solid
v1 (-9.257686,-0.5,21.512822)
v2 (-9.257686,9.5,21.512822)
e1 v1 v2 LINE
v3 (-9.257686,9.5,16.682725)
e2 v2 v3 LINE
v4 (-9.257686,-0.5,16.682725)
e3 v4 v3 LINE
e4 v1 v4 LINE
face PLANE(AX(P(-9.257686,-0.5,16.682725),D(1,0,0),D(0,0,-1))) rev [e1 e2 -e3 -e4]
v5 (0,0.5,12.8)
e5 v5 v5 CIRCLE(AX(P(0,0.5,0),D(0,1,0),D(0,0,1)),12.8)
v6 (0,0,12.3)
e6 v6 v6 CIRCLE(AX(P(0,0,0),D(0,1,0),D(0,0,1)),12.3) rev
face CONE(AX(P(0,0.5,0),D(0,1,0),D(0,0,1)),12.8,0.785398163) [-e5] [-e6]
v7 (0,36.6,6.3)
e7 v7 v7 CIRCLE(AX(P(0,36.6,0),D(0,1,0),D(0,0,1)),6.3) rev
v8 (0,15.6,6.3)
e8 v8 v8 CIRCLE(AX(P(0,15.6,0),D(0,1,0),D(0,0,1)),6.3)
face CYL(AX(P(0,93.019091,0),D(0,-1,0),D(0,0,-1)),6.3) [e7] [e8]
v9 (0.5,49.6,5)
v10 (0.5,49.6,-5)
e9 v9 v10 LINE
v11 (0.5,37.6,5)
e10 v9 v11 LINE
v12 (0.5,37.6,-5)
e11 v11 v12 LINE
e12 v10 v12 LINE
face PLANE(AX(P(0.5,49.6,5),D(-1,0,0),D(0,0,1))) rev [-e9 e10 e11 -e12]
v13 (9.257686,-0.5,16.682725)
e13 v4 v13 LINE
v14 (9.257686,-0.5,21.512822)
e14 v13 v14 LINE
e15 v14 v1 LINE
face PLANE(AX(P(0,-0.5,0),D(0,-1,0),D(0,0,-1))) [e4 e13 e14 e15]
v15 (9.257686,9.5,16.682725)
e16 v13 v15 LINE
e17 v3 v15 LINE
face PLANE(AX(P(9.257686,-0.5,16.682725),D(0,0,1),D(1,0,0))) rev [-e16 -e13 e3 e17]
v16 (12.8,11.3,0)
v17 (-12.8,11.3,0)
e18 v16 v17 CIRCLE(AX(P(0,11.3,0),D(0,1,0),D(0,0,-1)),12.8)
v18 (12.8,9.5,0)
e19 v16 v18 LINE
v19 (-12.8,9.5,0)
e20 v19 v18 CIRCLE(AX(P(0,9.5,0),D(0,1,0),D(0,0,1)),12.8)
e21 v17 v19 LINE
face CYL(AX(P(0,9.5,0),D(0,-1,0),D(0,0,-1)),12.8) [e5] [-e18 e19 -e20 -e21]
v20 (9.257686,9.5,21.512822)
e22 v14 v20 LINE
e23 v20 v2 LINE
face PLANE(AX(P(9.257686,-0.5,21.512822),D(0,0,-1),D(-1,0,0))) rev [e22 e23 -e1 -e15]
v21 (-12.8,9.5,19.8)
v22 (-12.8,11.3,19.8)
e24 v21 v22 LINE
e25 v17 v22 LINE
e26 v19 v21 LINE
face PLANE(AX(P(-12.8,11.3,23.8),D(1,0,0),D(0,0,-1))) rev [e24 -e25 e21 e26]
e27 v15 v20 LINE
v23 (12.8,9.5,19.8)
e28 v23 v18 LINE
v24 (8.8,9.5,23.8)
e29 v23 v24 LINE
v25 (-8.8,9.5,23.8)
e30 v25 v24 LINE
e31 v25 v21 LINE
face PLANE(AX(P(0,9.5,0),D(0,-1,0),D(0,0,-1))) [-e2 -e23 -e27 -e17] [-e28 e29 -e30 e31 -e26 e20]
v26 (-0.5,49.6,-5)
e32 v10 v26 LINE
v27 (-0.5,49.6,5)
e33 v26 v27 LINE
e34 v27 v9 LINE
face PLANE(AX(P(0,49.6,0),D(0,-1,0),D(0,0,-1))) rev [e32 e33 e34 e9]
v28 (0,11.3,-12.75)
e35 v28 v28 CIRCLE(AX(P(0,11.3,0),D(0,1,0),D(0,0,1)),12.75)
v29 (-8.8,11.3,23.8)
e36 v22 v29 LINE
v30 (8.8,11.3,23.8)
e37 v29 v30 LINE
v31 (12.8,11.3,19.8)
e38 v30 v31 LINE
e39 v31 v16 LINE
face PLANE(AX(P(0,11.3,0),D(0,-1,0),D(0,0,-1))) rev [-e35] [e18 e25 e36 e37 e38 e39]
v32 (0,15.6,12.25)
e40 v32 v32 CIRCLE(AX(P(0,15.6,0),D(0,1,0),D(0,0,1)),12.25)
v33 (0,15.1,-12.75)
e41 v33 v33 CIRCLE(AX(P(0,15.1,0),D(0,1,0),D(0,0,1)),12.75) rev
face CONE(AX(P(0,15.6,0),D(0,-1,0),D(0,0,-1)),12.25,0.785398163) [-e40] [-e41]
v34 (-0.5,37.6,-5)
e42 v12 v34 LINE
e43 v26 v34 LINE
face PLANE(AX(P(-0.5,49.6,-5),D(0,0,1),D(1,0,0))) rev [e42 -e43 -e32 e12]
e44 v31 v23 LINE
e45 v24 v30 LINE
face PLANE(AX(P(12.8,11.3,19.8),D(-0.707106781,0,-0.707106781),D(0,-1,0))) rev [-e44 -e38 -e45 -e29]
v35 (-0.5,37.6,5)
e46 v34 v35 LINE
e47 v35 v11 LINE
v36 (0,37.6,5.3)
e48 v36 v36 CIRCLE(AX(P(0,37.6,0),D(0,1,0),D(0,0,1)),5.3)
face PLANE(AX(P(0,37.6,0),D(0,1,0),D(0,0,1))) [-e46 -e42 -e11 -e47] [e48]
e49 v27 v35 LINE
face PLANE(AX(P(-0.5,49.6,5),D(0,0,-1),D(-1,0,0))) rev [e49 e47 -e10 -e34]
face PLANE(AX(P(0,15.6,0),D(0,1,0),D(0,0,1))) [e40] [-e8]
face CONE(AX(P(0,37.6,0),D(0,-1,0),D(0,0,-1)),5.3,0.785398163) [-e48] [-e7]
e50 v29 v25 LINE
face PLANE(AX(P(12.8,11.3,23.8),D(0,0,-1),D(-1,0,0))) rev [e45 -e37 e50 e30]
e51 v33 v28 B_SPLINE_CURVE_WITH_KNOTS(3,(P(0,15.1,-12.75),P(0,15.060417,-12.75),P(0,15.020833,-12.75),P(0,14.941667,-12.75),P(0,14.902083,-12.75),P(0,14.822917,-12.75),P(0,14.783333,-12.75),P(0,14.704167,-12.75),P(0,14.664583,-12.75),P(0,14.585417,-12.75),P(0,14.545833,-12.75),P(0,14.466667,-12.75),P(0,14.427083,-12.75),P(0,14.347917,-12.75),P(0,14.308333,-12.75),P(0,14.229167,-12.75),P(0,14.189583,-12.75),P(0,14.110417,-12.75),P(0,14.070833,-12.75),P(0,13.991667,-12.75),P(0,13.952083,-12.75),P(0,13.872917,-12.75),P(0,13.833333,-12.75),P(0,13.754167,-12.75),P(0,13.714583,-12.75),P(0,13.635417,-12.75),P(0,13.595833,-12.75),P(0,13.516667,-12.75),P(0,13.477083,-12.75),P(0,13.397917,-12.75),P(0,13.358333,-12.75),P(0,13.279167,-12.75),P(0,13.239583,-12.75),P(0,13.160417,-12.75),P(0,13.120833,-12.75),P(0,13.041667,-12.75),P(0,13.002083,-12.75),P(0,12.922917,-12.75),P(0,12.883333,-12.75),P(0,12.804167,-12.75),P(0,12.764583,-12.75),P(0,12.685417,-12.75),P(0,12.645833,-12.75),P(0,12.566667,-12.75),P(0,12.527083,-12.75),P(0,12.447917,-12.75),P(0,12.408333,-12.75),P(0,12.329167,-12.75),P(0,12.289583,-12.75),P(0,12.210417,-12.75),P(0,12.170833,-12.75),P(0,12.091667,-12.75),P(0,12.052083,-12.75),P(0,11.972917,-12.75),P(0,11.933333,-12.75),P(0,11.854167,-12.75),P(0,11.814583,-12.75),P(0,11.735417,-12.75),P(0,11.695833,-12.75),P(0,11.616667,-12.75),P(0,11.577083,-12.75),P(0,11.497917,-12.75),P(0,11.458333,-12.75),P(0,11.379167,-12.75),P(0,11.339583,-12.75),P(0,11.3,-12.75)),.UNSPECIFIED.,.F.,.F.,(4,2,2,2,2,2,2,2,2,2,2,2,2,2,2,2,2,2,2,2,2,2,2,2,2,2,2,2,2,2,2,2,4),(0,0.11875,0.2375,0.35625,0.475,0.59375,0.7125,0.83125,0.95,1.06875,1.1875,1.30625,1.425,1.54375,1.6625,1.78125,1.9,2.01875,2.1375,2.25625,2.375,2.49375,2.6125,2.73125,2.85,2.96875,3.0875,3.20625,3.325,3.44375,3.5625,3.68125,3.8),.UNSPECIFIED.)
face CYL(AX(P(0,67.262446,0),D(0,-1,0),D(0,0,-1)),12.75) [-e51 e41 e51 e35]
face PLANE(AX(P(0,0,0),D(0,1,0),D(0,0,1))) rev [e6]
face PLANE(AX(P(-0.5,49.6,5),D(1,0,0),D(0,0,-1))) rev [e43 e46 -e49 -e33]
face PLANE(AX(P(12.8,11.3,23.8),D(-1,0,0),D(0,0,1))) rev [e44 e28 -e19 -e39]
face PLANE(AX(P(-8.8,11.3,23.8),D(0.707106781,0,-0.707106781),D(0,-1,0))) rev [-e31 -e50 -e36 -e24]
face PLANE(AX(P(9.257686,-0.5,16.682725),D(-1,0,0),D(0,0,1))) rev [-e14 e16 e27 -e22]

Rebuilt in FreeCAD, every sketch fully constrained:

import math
import FreeCAD as App
import Part
import Sketcher
from FreeCAD import Vector


def edges_at(feature, points):
    """Names of the edges that pass closest to the given points."""
    edges = feature.Shape.Edges
    near = lambda p: min(range(len(edges)), key=lambda i: edges[i].distToShape(Part.Vertex(*p))[0])
    return sorted({f"Edge{near(p) + 1}" for p in points})

doc = App.newDocument("Part")
params = doc.addObject("Spreadsheet::Sheet", "Params")
for row, (alias, value) in enumerate([
    ("sketch1_diameter", "25.6 mm"),
    ("pad1_length", "9.5 mm"),
    ("sketch2_radius", "12.8 mm"),
    ("sketch2_height", "23.8 mm"),
    ("pad2_length", "1.8 mm"),
    ("sketch3_diameter", "25.5 mm"),
    ("pad3_length", "4.3 mm"),
    ("sketch4_diameter", "12.6 mm"),
    ("pad4_length", "22 mm"),
    ("chamfer_size", "1 mm"),
    ("chamfer2_size", "0.5 mm"),
    ("pad5_length", "10 mm"),
    ("sketch6_width", "1 mm"),
    ("sketch6_height", "10 mm"),
    ("pad6_length", "12 mm"),
    ("chamfer3_size", "4 mm"),
], start=1):
    params.set(f"A{row}", alias)
    params.set(f"B{row}", "=" + value)
    params.setAlias(f"B{row}", alias)

body = doc.addObject("PartDesign::Body", "Body")

# Sketch on XZ plane
sketch1 = doc.addObject("Sketcher::SketchObject", "Sketch")
body.addObject(sketch1)
sketch1.AttachmentSupport = (doc.XZ_Plane, [""])
sketch1.MapMode = "FlatFace"
sketch1.addGeometry(Part.Circle(Vector(0, 0, 0), Vector(0, 0, 1), 13), False)
sketch1.addConstraint([
    Sketcher.Constraint("Coincident", 0, 3, -1, 1),
    Sketcher.Constraint("Diameter", 0, 25.6),
])
sketch1.setExpression("Constraints[1]", "Params.sketch1_diameter")
pad1 = doc.addObject("PartDesign::Pad", "Pad")
body.addObject(pad1)
pad1.Profile = sketch1
pad1.setExpression("Length", "Params.pad1_length")
pad1.Reversed = True

# Sketch on XZ plane
sketch2 = doc.addObject("Sketcher::SketchObject", "Sketch001")
body.addObject(sketch2)
sketch2.AttachmentSupport = (doc.XZ_Plane, [""])
sketch2.MapMode = "FlatFace"
sketch2.AttachmentOffset = App.Placement(Vector(0, 0, -9.5), App.Rotation())
sketch2.addGeometry([
    Part.LineSegment(Vector(-13, 24, 0), Vector(13, 24, 0)),
    Part.LineSegment(Vector(13, 24, 0), Vector(13, 0, 0)),
    Part.ArcOfCircle(Part.Circle(Vector(0, 0, 0), Vector(0, 0, 1), 13), math.radians(180), math.radians(360)),
    Part.LineSegment(Vector(-13, 0, 0), Vector(-13, 24, 0)),
], False)
sketch2.addConstraint([
    Sketcher.Constraint("Coincident", 0, 2, 1, 1),
    Sketcher.Constraint("Tangent", 1, 2, 2, 2),
    Sketcher.Constraint("Tangent", 2, 1, 3, 1),
    Sketcher.Constraint("Coincident", 3, 2, 0, 1),
    Sketcher.Constraint("Horizontal", 0),
    Sketcher.Constraint("Vertical", 1),
    Sketcher.Constraint("Vertical", 3),
    Sketcher.Constraint("Coincident", 2, 3, -1, 1),
    Sketcher.Constraint("Radius", 2, 12.8),
    Sketcher.Constraint("DistanceY", 1, 2, 1, 1, 23.8),
])
sketch2.setExpression("Constraints[8]", "Params.sketch2_radius")
sketch2.setExpression("Constraints[9]", "Params.sketch2_height")
pad2 = doc.addObject("PartDesign::Pad", "Pad001")
body.addObject(pad2)
pad2.Profile = sketch2
pad2.setExpression("Length", "Params.pad2_length")
pad2.Reversed = True

# Sketch on XZ plane
sketch3 = doc.addObject("Sketcher::SketchObject", "Sketch002")
body.addObject(sketch3)
sketch3.AttachmentSupport = (doc.XZ_Plane, [""])
sketch3.MapMode = "FlatFace"
sketch3.AttachmentOffset = App.Placement(Vector(0, 0, -11.3), App.Rotation())
sketch3.addGeometry(Part.Circle(Vector(0, 0, 0), Vector(0, 0, 1), 13), False)
sketch3.addConstraint([
    Sketcher.Constraint("Coincident", 0, 3, -1, 1),
    Sketcher.Constraint("Diameter", 0, 25.5),
])
sketch3.setExpression("Constraints[1]", "Params.sketch3_diameter")
pad3 = doc.addObject("PartDesign::Pad", "Pad002")
body.addObject(pad3)
pad3.Profile = sketch3
pad3.setExpression("Length", "Params.pad3_length")
pad3.Reversed = True

# Sketch on XZ plane
sketch4 = doc.addObject("Sketcher::SketchObject", "Sketch003")
body.addObject(sketch4)
sketch4.AttachmentSupport = (doc.XZ_Plane, [""])
sketch4.MapMode = "FlatFace"
sketch4.AttachmentOffset = App.Placement(Vector(0, 0, -15.6), App.Rotation())
sketch4.addGeometry(Part.Circle(Vector(0, 0, 0), Vector(0, 0, 1), 6), False)
sketch4.addConstraint([
    Sketcher.Constraint("Coincident", 0, 3, -1, 1),
    Sketcher.Constraint("Diameter", 0, 12.6),
])
sketch4.setExpression("Constraints[1]", "Params.sketch4_diameter")
pad4 = doc.addObject("PartDesign::Pad", "Pad003")
body.addObject(pad4)
pad4.Profile = sketch4
pad4.setExpression("Length", "Params.pad4_length")
pad4.Reversed = True
doc.recompute()

chamfer = doc.addObject("PartDesign::Chamfer", "Chamfer")
body.addObject(chamfer)
chamfer.Base = (pad4, edges_at(pad4, [(0, 37.6, -6.3)]))
chamfer.setExpression("Size", "Params.chamfer_size")
doc.recompute()

chamfer2 = doc.addObject("PartDesign::Chamfer", "Chamfer001")
body.addObject(chamfer2)
chamfer2.Base = (chamfer, edges_at(chamfer, [(0, 0, -12.8), (0, 15.6, 12.75)]))
chamfer2.setExpression("Size", "Params.chamfer2_size")

# Sketch on XZ plane
sketch5 = doc.addObject("Sketcher::SketchObject", "Sketch004")
body.addObject(sketch5)
sketch5.AttachmentSupport = (doc.XZ_Plane, [""])
sketch5.MapMode = "FlatFace"
sketch5.AttachmentOffset = App.Placement(Vector(0, 0, -9.5), App.Rotation())
sketch5.addGeometry([
    Part.LineSegment(Vector(-9.3, 21.5, 0), Vector(-9.3, 16.7, 0)),
    Part.LineSegment(Vector(-9.3, 16.7, 0), Vector(9.3, 16.7, 0)),
    Part.LineSegment(Vector(9.3, 16.7, 0), Vector(9.3, 21.5, 0)),
    Part.LineSegment(Vector(9.3, 21.5, 0), Vector(-9.3, 21.5, 0)),
], False)
sketch5.addConstraint([
    Sketcher.Constraint("Coincident", 0, 2, 1, 1),
    Sketcher.Constraint("Coincident", 1, 2, 2, 1),
    Sketcher.Constraint("Coincident", 2, 2, 3, 1),
    Sketcher.Constraint("Coincident", 3, 2, 0, 1),
    Sketcher.Constraint("Vertical", 0),
    Sketcher.Constraint("Horizontal", 1),
    Sketcher.Constraint("Vertical", 2),
    Sketcher.Constraint("Horizontal", 3),
    Sketcher.Constraint("DistanceX", 1, 1, 1, 2, 18.515373),
    Sketcher.Constraint("DistanceY", 0, 2, 0, 1, 4.830097),
    Sketcher.Constraint("DistanceX", 0, 2, -1, 1, 9.257686),
    Sketcher.Constraint("DistanceY", -1, 1, 0, 2, 16.682725),
])
pad5 = doc.addObject("PartDesign::Pad", "Pad004")
body.addObject(pad5)
pad5.Profile = sketch5
pad5.setExpression("Length", "Params.pad5_length")

# Sketch on XZ plane
sketch6 = doc.addObject("Sketcher::SketchObject", "Sketch005")
body.addObject(sketch6)
sketch6.AttachmentSupport = (doc.XZ_Plane, [""])
sketch6.MapMode = "FlatFace"
sketch6.AttachmentOffset = App.Placement(Vector(0, 0, -37.6), App.Rotation())
sketch6.addGeometry([
    Part.LineSegment(Vector(-0.5, -5, 0), Vector(-0.5, 5, 0)),
    Part.LineSegment(Vector(-0.5, 5, 0), Vector(0.5, 5, 0)),
    Part.LineSegment(Vector(0.5, 5, 0), Vector(0.5, -5, 0)),
    Part.LineSegment(Vector(0.5, -5, 0), Vector(-0.5, -5, 0)),
], False)
sketch6.addConstraint([
    Sketcher.Constraint("Coincident", 0, 2, 1, 1),
    Sketcher.Constraint("Coincident", 1, 2, 2, 1),
    Sketcher.Constraint("Coincident", 2, 2, 3, 1),
    Sketcher.Constraint("Coincident", 3, 2, 0, 1),
    Sketcher.Constraint("Vertical", 0),
    Sketcher.Constraint("Horizontal", 1),
    Sketcher.Constraint("Vertical", 2),
    Sketcher.Constraint("Horizontal", 3),
    Sketcher.Constraint("Symmetric", 0, 2, 2, 2, -1, 1),
    Sketcher.Constraint("DistanceX", 1, 1, 1, 2, 1.0),
    Sketcher.Constraint("DistanceY", 0, 1, 0, 2, 10.0),
])
sketch6.setExpression("Constraints[9]", "Params.sketch6_width")
sketch6.setExpression("Constraints[10]", "Params.sketch6_height")
pad6 = doc.addObject("PartDesign::Pad", "Pad005")
body.addObject(pad6)
pad6.Profile = sketch6
pad6.setExpression("Length", "Params.pad6_length")
pad6.Reversed = True
doc.recompute()

chamfer3 = doc.addObject("PartDesign::Chamfer", "Chamfer002")
body.addObject(chamfer3)
chamfer3.Base = (pad6, edges_at(pad6, [(-12.8, 10.4, 23.8), (12.8, 10.4, 23.8)]))
chamfer3.setExpression("Size", "Params.chamfer3_size")

doc.recompute()
